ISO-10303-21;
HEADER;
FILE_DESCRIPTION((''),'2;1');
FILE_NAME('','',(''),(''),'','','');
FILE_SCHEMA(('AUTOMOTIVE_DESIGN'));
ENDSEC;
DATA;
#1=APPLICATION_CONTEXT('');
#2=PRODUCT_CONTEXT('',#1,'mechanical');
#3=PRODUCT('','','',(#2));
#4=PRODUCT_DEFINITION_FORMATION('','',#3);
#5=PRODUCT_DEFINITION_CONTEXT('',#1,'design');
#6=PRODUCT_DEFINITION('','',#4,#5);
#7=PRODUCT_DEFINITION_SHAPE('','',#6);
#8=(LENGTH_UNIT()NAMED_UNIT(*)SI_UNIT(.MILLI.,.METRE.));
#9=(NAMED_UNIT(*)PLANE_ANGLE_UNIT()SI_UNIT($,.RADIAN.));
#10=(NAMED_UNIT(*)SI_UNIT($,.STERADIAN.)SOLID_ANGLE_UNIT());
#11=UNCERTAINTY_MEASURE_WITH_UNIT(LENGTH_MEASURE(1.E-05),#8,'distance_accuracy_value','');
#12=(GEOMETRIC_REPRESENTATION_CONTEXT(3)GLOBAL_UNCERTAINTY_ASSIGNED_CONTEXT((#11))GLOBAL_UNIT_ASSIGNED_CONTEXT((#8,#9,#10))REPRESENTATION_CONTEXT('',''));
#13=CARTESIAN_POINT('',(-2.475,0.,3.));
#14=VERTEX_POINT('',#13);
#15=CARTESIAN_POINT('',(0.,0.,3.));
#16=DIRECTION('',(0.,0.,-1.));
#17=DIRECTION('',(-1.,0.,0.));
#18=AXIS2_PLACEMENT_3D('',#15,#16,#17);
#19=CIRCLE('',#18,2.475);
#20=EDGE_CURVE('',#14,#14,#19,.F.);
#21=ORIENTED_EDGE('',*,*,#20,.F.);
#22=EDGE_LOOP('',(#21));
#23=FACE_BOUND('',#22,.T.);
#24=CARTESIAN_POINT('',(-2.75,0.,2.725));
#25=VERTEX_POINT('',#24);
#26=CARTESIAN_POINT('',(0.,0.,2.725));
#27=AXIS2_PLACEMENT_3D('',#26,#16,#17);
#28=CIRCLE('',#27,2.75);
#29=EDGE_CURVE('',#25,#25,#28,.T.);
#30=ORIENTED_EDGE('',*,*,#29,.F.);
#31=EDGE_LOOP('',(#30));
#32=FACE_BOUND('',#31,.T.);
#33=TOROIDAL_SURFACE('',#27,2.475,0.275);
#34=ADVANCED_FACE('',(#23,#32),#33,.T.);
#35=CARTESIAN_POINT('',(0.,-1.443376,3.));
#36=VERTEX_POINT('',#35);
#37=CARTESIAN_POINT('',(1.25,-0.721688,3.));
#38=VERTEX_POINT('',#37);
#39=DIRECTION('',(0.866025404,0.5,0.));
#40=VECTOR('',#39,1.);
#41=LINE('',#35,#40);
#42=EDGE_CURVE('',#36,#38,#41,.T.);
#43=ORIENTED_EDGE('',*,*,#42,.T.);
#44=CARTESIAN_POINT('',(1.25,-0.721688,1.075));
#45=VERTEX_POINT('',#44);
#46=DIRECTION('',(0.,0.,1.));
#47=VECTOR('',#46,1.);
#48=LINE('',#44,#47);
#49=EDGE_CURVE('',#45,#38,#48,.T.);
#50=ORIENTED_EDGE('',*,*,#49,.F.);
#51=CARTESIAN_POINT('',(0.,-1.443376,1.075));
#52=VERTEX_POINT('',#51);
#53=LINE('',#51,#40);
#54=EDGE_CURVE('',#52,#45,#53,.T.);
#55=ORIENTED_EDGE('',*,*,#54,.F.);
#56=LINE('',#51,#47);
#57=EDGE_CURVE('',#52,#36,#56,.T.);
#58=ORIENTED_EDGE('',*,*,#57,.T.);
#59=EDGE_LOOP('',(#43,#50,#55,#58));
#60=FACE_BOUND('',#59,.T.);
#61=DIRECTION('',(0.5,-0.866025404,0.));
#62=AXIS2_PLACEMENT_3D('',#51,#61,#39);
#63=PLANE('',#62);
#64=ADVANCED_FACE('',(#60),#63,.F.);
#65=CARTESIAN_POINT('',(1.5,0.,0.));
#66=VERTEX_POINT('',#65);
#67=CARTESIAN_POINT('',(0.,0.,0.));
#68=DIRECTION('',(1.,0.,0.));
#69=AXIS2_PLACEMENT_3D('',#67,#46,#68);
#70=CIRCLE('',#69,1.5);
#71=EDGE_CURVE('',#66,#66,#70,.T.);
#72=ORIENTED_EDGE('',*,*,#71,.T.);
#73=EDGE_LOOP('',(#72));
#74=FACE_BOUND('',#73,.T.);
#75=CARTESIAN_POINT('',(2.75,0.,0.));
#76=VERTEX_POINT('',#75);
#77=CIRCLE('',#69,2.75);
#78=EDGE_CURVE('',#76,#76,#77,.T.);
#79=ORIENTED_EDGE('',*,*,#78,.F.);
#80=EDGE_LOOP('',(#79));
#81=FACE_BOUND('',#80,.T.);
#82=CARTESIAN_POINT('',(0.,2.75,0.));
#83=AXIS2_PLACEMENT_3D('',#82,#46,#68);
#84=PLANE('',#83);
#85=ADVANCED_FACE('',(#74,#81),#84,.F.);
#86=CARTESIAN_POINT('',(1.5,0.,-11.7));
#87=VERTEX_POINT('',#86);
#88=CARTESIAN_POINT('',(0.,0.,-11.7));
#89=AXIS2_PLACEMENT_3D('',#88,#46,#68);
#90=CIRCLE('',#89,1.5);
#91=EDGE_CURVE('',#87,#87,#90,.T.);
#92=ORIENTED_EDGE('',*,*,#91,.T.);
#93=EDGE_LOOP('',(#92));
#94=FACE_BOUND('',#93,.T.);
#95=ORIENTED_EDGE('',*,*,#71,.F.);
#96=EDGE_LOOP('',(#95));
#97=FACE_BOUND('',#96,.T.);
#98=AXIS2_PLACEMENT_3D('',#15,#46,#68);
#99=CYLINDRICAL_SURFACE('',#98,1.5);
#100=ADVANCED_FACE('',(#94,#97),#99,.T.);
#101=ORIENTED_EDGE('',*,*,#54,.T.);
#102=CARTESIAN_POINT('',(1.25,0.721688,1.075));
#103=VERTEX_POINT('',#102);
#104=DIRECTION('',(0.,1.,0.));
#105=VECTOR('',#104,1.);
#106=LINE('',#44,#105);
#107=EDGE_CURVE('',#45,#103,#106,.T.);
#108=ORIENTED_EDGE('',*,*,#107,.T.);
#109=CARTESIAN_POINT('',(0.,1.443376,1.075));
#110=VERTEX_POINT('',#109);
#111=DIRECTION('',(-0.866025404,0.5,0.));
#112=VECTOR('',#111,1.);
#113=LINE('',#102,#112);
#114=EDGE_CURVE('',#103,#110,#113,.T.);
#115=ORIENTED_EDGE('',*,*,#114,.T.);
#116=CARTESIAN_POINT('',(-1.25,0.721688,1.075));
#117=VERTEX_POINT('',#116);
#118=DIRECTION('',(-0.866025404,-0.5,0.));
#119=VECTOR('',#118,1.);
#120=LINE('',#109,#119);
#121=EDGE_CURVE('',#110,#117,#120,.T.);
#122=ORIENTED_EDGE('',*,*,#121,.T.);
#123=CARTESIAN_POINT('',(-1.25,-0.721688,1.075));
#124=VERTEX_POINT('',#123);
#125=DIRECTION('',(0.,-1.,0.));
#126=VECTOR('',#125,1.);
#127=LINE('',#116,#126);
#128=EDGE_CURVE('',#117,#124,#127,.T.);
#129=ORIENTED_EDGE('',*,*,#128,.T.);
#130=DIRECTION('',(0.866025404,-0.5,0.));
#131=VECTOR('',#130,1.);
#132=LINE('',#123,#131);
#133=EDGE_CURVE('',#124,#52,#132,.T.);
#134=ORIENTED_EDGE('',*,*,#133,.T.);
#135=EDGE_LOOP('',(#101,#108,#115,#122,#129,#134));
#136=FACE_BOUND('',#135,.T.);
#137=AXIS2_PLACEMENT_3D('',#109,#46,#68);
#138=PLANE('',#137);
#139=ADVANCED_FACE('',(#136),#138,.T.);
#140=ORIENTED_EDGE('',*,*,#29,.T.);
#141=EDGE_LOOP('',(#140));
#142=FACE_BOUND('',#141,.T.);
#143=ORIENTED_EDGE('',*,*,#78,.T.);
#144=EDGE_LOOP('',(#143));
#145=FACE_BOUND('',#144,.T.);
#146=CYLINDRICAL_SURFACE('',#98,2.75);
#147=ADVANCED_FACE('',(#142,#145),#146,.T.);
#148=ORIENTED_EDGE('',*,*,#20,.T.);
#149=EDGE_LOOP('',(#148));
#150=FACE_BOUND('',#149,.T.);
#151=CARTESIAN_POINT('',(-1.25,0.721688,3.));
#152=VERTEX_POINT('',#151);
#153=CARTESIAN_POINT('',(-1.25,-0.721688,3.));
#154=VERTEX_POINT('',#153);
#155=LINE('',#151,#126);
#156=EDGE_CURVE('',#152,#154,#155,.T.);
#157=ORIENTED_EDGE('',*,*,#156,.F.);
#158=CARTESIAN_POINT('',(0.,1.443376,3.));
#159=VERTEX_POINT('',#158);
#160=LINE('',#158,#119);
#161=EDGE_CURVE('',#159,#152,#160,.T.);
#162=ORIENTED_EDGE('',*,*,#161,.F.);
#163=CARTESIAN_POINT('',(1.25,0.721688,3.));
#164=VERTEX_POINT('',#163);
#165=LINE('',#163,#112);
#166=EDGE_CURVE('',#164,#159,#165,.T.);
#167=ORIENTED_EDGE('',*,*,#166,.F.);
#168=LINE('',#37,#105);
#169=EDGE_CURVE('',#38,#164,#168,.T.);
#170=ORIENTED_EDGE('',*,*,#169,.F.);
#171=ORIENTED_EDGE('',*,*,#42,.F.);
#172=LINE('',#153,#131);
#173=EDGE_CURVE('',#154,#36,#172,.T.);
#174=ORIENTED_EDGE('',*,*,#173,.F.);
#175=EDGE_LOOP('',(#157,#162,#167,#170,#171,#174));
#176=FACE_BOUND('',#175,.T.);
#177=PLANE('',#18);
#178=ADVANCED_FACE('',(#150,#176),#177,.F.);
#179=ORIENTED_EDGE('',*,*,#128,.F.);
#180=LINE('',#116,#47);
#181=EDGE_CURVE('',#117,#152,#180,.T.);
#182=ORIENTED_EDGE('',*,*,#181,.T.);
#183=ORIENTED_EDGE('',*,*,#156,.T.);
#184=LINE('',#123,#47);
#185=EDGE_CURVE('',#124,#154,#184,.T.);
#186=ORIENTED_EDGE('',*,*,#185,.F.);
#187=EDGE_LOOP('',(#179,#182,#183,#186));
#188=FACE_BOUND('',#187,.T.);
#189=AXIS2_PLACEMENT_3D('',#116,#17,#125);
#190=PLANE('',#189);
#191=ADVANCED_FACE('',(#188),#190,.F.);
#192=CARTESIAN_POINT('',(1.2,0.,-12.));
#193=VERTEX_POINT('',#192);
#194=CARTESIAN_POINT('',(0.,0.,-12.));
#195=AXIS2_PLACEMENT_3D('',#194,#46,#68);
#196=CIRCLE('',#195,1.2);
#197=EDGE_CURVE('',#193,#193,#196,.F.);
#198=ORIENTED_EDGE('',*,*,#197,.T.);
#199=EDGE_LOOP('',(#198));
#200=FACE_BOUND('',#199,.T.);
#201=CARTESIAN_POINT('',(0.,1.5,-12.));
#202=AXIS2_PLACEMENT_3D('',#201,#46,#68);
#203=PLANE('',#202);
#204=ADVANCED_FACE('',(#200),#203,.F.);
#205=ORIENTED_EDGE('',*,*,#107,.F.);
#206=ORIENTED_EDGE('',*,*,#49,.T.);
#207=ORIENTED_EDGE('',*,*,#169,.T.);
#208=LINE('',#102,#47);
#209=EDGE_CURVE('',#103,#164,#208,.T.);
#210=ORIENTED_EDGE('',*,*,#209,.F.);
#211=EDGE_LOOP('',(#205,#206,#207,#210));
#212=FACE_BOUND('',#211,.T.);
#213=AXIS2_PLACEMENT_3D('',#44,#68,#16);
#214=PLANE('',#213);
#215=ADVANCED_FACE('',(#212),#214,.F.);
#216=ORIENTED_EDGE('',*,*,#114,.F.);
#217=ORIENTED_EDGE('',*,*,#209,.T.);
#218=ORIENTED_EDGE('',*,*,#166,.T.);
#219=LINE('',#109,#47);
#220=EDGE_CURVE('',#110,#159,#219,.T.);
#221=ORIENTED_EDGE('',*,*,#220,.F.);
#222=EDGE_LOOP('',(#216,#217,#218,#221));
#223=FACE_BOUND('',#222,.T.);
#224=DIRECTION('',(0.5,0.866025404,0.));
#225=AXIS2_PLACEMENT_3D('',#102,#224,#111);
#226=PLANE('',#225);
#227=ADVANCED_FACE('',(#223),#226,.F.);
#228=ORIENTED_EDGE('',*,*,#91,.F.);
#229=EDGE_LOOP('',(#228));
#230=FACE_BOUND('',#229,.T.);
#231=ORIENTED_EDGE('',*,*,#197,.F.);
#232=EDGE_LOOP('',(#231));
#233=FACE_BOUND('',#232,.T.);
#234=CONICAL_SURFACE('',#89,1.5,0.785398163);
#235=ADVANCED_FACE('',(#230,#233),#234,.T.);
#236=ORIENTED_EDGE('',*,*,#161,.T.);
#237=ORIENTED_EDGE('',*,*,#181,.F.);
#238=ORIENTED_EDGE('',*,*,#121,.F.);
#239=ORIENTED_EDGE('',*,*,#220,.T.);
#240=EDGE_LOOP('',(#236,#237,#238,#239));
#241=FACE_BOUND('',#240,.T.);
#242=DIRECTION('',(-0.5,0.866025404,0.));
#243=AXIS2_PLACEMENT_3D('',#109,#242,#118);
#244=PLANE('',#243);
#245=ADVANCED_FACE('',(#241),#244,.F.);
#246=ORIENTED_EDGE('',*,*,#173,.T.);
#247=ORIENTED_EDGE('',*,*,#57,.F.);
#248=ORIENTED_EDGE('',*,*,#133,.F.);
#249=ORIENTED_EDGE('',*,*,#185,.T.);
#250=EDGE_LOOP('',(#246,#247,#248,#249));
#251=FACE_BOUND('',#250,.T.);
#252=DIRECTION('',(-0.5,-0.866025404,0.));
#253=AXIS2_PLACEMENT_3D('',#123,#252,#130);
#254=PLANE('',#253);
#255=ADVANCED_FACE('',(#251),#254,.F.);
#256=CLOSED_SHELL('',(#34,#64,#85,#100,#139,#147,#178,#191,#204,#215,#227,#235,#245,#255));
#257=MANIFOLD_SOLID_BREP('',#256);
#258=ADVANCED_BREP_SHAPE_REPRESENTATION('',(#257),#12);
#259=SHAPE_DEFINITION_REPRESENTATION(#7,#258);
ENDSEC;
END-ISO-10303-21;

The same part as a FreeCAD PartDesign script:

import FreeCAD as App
import Part
import Sketcher
from FreeCAD import Vector
Q = App.Units.Quantity


def edges_at(feature, points):
    """Names of the edges that pass closest to the given points."""
    edges = feature.Shape.Edges
    near = lambda p: min(range(len(edges)), key=lambda i: edges[i].distToShape(Part.Vertex(*p))[0])
    return sorted({f"Edge{near(p) + 1}" for p in points})

doc = App.newDocument("Part")
body = doc.addObject("PartDesign::Body", "Body")

# Sketch on YZ plane
sketch1 = doc.addObject("Sketcher::SketchObject", "Sketch")
body.addObject(sketch1)
sketch1.AttachmentSupport = (doc.YZ_Plane, [""])
sketch1.MapMode = "FlatFace"
sketch1.addGeometry(Part.LineSegment(Vector(2.75, 3, 0), Vector(0, 3, 0)), False)
sketch1.addGeometry(Part.LineSegment(Vector(0, 3, 0), Vector(0, -12, 0)), False)
sketch1.addGeometry(Part.LineSegment(Vector(0, -12, 0), Vector(1.5, -12, 0)), False)
sketch1.addGeometry(Part.LineSegment(Vector(1.5, -12, 0), Vector(1.5, 0, 0)), False)
sketch1.addGeometry(Part.LineSegment(Vector(1.5, 0, 0), Vector(2.75, 0, 0)), False)
sketch1.addGeometry(Part.LineSegment(Vector(2.75, 0, 0), Vector(2.75, 3, 0)), False)
sketch1.addConstraint(Sketcher.Constraint("Coincident", 0, 2, 1, 1))
sketch1.addConstraint(Sketcher.Constraint("Coincident", 1, 2, 2, 1))
sketch1.addConstraint(Sketcher.Constraint("Coincident", 2, 2, 3, 1))
sketch1.addConstraint(Sketcher.Constraint("Coincident", 3, 2, 4, 1))
sketch1.addConstraint(Sketcher.Constraint("Coincident", 4, 2, 5, 1))
sketch1.addConstraint(Sketcher.Constraint("Coincident", 5, 2, 0, 1))
sketch1.addConstraint(Sketcher.Constraint("Horizontal", 0))
sketch1.addConstraint(Sketcher.Constraint("Vertical", 1))
sketch1.addConstraint(Sketcher.Constraint("Horizontal", 2))
sketch1.addConstraint(Sketcher.Constraint("Vertical", 3))
sketch1.addConstraint(Sketcher.Constraint("Horizontal", 4))
sketch1.addConstraint(Sketcher.Constraint("Vertical", 5))
sketch1.addConstraint(Sketcher.Constraint("PointOnObject", 0, 2, -2))
sketch1.addConstraint(Sketcher.Constraint("PointOnObject", 3, 2, -1))
sketch1.addConstraint(Sketcher.Constraint("DistanceY", 1, 2, 1, 1, 15.0))
sketch1.addConstraint(Sketcher.Constraint("DistanceY", 3, 1, 3, 2, 12.0))
sketch1.addConstraint(Sketcher.Constraint("DistanceX", 2, 1, 2, 2, 1.5))
sketch1.addConstraint(Sketcher.Constraint("DistanceX", 0, 2, 0, 1, 2.75))
revolution = doc.addObject("PartDesign::Revolution", "Revolution")
body.addObject(revolution)
revolution.Profile = sketch1
revolution.ReferenceAxis = (sketch1, ["V_Axis"])
revolution.Angle = 360

# Sketch on XY plane
sketch2 = doc.addObject("Sketcher::SketchObject", "Sketch001")
body.addObject(sketch2)
sketch2.AttachmentSupport = (doc.XY_Plane, [""])
sketch2.MapMode = "FlatFace"
sketch2.AttachmentOffset = App.Placement(Vector(0, 0, 3), App.Rotation())
sketch2.addGeometry(Part.LineSegment(Vector(0, 1.443376, 0), Vector(-1.25, 0.721688, 0)), False)
sketch2.addGeometry(Part.LineSegment(Vector(-1.25, 0.721688, 0), Vector(-1.25, -0.721688, 0)), False)
sketch2.addGeometry(Part.LineSegment(Vector(-1.25, -0.721688, 0), Vector(0, -1.443376, 0)), False)
sketch2.addGeometry(Part.LineSegment(Vector(0, -1.443376, 0), Vector(1.25, -0.721688, 0)), False)
sketch2.addGeometry(Part.LineSegment(Vector(1.25, -0.721688, 0), Vector(1.25, 0.721688, 0)), False)
sketch2.addGeometry(Part.LineSegment(Vector(1.25, 0.721688, 0), Vector(0, 1.443376, 0)), False)
sketch2.addConstraint(Sketcher.Constraint("Coincident", 0, 2, 1, 1))
sketch2.addConstraint(Sketcher.Constraint("Coincident", 1, 2, 2, 1))
sketch2.addConstraint(Sketcher.Constraint("Coincident", 2, 2, 3, 1))
sketch2.addConstraint(Sketcher.Constraint("Coincident", 3, 2, 4, 1))
sketch2.addConstraint(Sketcher.Constraint("Coincident", 4, 2, 5, 1))
sketch2.addConstraint(Sketcher.Constraint("Coincident", 5, 2, 0, 1))
sketch2.addConstraint(Sketcher.Constraint("Vertical", 1))
sketch2.addConstraint(Sketcher.Constraint("Vertical", 4))
sketch2.addConstraint(Sketcher.Constraint("Symmetric", 0, 2, 3, 2, -1, 1))
sketch2.addConstraint(Sketcher.Constraint("Symmetric", 2, 2, 5, 2, -1, 1))
sketch2.addConstraint(Sketcher.Constraint("PointOnObject", 2, 2, -2))
sketch2.addConstraint(Sketcher.Constraint("Parallel", 2, 5))
sketch2.addConstraint(Sketcher.Constraint("Horizontal", 1, 2, 3, 2))
sketch2.addConstraint(Sketcher.Constraint("Angle", 0, Q("-150 deg")))
sketch2.addConstraint(Sketcher.Constraint("DistanceX", 1, 2, 3, 2, 2.5))
sketch2.addConstraint(Sketcher.Constraint("DistanceY", 1, 2, 1, 1, 1.443376))
pocket1 = doc.addObject("PartDesign::Pocket", "Pocket")
body.addObject(pocket1)
pocket1.Profile = sketch2
pocket1.Length = 1.925
doc.recompute()

fillet = doc.addObject("PartDesign::Fillet", "Fillet")
body.addObject(fillet)
fillet.Base = (pocket1, edges_at(pocket1, [(-2.75, 0, 3)]))
fillet.Radius = 0.275
doc.recompute()

chamfer = doc.addObject("PartDesign::Chamfer", "Chamfer")
body.addObject(chamfer)
chamfer.Base = (fillet, edges_at(fillet, [(-1.5, 0, -12)]))
chamfer.Size = 0.3

doc.recompute()
